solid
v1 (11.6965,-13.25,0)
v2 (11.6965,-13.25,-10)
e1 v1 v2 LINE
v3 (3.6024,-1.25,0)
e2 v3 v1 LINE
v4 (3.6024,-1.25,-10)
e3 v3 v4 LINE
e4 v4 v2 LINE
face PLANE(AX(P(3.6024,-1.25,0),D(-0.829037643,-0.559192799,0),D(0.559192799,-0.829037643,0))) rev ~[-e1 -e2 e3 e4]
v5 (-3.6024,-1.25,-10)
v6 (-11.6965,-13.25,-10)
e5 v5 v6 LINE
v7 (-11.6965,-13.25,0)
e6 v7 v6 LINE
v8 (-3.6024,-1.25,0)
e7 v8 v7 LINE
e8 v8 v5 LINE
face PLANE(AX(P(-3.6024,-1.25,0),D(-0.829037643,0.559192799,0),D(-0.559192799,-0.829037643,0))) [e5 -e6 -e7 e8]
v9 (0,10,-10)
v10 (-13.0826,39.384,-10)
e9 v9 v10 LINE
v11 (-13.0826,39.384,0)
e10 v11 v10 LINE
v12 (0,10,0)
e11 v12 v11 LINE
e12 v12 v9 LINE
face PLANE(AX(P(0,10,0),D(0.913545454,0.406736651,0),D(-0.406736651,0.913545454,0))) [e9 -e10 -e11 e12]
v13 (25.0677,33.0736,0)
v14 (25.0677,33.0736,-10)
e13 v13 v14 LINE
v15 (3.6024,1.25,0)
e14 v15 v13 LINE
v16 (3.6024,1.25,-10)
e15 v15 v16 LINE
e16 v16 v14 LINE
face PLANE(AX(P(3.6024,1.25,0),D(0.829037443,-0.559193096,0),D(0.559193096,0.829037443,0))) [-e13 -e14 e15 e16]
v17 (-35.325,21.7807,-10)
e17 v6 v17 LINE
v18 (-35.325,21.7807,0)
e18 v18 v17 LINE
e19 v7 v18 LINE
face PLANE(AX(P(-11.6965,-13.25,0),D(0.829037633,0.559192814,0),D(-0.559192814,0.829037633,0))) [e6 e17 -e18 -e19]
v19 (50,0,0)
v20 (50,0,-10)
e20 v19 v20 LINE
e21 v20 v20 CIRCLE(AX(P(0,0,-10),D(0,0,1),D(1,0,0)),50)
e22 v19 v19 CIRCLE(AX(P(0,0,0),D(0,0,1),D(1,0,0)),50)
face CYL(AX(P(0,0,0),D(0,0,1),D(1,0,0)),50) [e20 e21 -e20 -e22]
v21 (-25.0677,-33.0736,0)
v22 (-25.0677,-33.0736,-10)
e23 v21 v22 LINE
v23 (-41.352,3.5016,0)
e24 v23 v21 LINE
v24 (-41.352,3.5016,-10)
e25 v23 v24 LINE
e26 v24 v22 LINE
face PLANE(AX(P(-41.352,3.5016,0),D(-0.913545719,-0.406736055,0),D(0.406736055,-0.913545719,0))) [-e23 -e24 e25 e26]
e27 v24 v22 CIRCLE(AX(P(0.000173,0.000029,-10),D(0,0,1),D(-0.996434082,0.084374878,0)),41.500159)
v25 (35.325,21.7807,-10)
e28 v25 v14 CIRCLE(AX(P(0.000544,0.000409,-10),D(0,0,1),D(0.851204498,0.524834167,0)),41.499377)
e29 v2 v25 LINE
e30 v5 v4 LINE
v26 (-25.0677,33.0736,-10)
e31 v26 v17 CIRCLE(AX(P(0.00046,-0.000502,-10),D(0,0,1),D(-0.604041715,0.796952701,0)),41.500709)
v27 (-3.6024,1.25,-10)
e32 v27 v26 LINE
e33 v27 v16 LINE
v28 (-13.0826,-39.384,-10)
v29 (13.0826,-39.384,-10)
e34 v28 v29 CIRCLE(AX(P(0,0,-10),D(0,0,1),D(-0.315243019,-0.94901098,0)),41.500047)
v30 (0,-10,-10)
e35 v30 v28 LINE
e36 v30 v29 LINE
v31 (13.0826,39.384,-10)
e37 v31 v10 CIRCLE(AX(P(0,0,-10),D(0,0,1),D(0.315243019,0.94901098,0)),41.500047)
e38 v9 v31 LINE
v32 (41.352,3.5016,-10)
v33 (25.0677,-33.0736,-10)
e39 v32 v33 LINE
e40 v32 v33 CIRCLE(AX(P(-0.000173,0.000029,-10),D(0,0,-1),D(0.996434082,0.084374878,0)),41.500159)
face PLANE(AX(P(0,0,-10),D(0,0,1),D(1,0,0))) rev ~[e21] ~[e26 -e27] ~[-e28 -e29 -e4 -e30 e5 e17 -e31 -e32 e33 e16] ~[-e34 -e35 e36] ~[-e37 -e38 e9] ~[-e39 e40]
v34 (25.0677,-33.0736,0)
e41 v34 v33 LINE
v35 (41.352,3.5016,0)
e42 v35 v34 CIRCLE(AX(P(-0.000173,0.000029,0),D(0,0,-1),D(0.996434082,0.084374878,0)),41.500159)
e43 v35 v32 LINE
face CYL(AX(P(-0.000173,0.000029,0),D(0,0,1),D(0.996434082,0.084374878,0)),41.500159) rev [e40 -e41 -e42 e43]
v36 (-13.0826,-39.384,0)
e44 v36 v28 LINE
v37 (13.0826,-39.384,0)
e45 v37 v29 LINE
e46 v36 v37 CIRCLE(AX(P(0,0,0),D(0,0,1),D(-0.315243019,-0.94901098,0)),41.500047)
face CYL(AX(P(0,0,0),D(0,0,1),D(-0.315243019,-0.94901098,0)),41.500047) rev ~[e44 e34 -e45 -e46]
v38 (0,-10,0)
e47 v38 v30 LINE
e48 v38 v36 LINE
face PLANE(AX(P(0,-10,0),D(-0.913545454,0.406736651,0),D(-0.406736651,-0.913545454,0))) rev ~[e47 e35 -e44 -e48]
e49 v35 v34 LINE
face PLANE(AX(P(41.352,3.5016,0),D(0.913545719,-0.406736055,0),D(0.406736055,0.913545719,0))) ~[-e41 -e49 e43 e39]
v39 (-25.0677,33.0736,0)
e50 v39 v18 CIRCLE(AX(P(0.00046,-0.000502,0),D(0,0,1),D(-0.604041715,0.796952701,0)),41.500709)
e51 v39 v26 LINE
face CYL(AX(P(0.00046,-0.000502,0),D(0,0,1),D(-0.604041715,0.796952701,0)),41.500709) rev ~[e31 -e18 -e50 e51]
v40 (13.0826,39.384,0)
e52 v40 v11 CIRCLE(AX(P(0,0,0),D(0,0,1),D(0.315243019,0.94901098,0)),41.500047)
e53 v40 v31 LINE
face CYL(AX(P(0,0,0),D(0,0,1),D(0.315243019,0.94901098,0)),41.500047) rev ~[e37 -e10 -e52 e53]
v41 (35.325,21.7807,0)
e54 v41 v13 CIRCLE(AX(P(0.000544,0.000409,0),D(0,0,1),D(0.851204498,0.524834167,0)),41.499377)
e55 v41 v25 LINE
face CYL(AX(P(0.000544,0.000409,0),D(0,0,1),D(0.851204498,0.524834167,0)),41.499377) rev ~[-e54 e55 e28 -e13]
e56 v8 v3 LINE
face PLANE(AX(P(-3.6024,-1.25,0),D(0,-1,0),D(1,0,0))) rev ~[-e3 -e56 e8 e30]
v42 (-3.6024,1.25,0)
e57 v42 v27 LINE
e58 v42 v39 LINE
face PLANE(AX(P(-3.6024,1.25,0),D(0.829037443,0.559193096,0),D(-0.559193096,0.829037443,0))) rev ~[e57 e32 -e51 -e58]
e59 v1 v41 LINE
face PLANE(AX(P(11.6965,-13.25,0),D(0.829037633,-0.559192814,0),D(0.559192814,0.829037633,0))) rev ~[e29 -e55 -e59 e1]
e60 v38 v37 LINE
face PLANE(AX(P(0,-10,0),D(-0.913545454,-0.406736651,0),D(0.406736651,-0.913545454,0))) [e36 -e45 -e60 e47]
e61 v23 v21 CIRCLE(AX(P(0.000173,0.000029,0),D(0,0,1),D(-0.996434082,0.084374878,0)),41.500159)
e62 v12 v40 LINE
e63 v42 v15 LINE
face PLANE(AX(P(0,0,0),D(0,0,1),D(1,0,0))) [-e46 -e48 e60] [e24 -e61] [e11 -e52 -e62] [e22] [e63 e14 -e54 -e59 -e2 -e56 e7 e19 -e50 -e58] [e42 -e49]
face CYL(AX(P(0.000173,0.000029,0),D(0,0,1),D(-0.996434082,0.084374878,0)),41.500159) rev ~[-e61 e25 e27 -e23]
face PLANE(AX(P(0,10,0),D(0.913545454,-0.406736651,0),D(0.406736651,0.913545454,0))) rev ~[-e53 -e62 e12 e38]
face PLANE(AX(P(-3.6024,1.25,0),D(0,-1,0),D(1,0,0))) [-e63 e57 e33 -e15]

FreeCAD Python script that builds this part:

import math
import FreeCAD as App
import Part
import Sketcher

V = App.Vector
Q = App.Units.Quantity

doc = App.newDocument("Part")
params = doc.addObject("Spreadsheet::Sheet", "Params")
for row, (alias, value) in enumerate([
    ("sketch1_diameter", "100 mm"),
    ("pad1_length", "10 mm"),
    ("sketch2_radius", "41.5 mm"),
    ("pocket1_length", "10 mm"),
    ("sketch3_radius", "41.5 mm"),
    ("pocket2_length", "10 mm"),
    ("sketch4_radius", "41.5 mm"),
    ("pocket3_length", "10 mm"),
], start=1):
    params.set(f"A{row}", alias)
    params.set(f"B{row}", "=" + value)
    params.setAlias(f"B{row}", alias)

body = doc.addObject("PartDesign::Body", "Body")

# Sketch on XY plane
sketch1 = body.newObject("Sketcher::SketchObject", "Sketch")
sketch1.AttachmentSupport = (doc.getObject("XY_Plane"), [""])
sketch1.MapMode = "FlatFace"
sketch1.addGeometry(Part.Circle(V(0, 0, 0), V(0, 0, 1), 50), False)
sketch1.addConstraint(Sketcher.Constraint("Coincident", 0, 3, -1, 1))
sketch1.addConstraint(Sketcher.Constraint("Diameter", 0, Q("100 mm")))
sketch1.setExpression("Constraints[1]", "Params.sketch1_diameter")
pad1 = body.newObject("PartDesign::Pad", "Pad")
pad1.Profile = sketch1
pad1.setExpression("Length", "Params.pad1_length")
pad1.Reversed = True

# Sketch on XY plane
sketch2 = body.newObject("Sketcher::SketchObject", "Sketch001")
sketch2.AttachmentSupport = (doc.getObject("XY_Plane"), [""])
sketch2.MapMode = "FlatFace"
sketch2.addGeometry(Part.LineSegment(V(13, -39, 0), V(0, -10, 0)), False)
sketch2.addGeometry(Part.LineSegment(V(0, -10, 0), V(-13, -39, 0)), False)
sketch2.addGeometry(Part.ArcOfCircle(Part.Circle(V(0, 0, 0), V(0, 0, 1), 42), math.radians(-108), math.radians(-72)), False)
sketch2.addConstraint(Sketcher.Constraint("Coincident", 0, 2, 1, 1))
sketch2.addConstraint(Sketcher.Constraint("Coincident", 1, 2, 2, 1))
sketch2.addConstraint(Sketcher.Constraint("Coincident", 2, 2, 0, 1))
sketch2.addConstraint(Sketcher.Constraint("Coincident", 2, 3, -1, 1))
sketch2.addConstraint(Sketcher.Constraint("PointOnObject", 0, 2, -2))
sketch2.addConstraint(Sketcher.Constraint("Horizontal", 1, 2, 2, 2))
sketch2.addConstraint(Sketcher.Constraint("DistanceY", 0, 2, -1, 1, Q("10 mm")))
sketch2.addConstraint(Sketcher.Constraint("Radius", 2, Q("41.5 mm")))
sketch2.addConstraint(Sketcher.Constraint("Angle", 0, Q("114 deg")))
sketch2.setExpression("Constraints[7]", "Params.sketch2_radius")
pocket1 = body.newObject("PartDesign::Pocket", "Pocket")
pocket1.Profile = sketch2
pocket1.setExpression("Length", "Params.pocket1_length")
doc.recompute()

polarpattern = body.newObject("PartDesign::PolarPattern", "PolarPattern")
polarpattern.Originals = [pocket1]
polarpattern.Axis = (doc.getObject("Z_Axis"), [""])
polarpattern.Angle = 360
polarpattern.Occurrences = 2
body.Tip = polarpattern

# Sketch on XY plane
sketch3 = body.newObject("Sketcher::SketchObject", "Sketch002")
sketch3.AttachmentSupport = (doc.getObject("XY_Plane"), [""])
sketch3.MapMode = "FlatFace"
sketch3.addGeometry(Part.LineSegment(V(4, 1, 0), V(-4, 1, 0)), False)
sketch3.addGeometry(Part.LineSegment(V(-4, 1, 0), V(-25, 33, 0)), False)
sketch3.addGeometry(Part.ArcOfCircle(Part.Circle(V(0, 0, 0), V(0, 0, 1), 42), math.radians(127), math.radians(148)), False)
sketch3.addGeometry(Part.LineSegment(V(-35, 22, 0), V(-12, -13, 0)), False)
sketch3.addGeometry(Part.LineSegment(V(-12, -13, 0), V(-4, -1, 0)), False)
sketch3.addGeometry(Part.LineSegment(V(-4, -1, 0), V(4, -1, 0)), False)
sketch3.addGeometry(Part.LineSegment(V(4, -1, 0), V(12, -13, 0)), False)
sketch3.addGeometry(Part.LineSegment(V(12, -13, 0), V(35, 22, 0)), False)
sketch3.addGeometry(Part.ArcOfCircle(Part.Circle(V(0, 0, 0), V(0, 0, 1), 42), math.radians(32), math.radians(53)), False)
sketch3.addGeometry(Part.LineSegment(V(25, 33, 0), V(4, 1, 0)), False)
sketch3.addConstraint(Sketcher.Constraint("Coincident", 0, 2, 1, 1))
sketch3.addConstraint(Sketcher.Constraint("Coincident", 1, 2, 2, 1))
sketch3.addConstraint(Sketcher.Constraint("Coincident", 2, 2, 3, 1))
sketch3.addConstraint(Sketcher.Constraint("Coincident", 3, 2, 4, 1))
sketch3.addConstraint(Sketcher.Constraint("Coincident", 4, 2, 5, 1))
sketch3.addConstraint(Sketcher.Constraint("Coincident", 5, 2, 6, 1))
sketch3.addConstraint(Sketcher.Constraint("Coincident", 6, 2, 7, 1))
sketch3.addConstraint(Sketcher.Constraint("Coincident", 7, 2, 8, 1))
sketch3.addConstraint(Sketcher.Constraint("Coincident", 8, 2, 9, 1))
sketch3.addConstraint(Sketcher.Constraint("Coincident", 9, 2, 0, 1))
sketch3.addConstraint(Sketcher.Constraint("Horizontal", 0))
sketch3.addConstraint(Sketcher.Constraint("Horizontal", 5))
sketch3.addConstraint(Sketcher.Constraint("Coincident", 2, 3, -1, 1))
sketch3.addConstraint(Sketcher.Constraint("Coincident", 8, 3, -1, 1))
sketch3.addConstraint(Sketcher.Constraint("Equal", 2, 8))
sketch3.addConstraint(Sketcher.Constraint("Symmetric", 0, 2, 5, 2, -1, 1))
sketch3.addConstraint(Sketcher.Constraint("Symmetric", 3, 2, 6, 2, -2))
sketch3.addConstraint(Sketcher.Constraint("Parallel", 1, 3))
sketch3.addConstraint(Sketcher.Constraint("Parallel", 3, 6))
sketch3.addConstraint(Sketcher.Constraint("Parallel", 4, 7))
sketch3.addConstraint(Sketcher.Constraint("Parallel", 7, 9))
sketch3.addConstraint(Sketcher.Constraint("Horizontal", 2, 2, 7, 2))
sketch3.addConstraint(Sketcher.Constraint("Horizontal", 1, 2, 8, 2))
sketch3.addConstraint(Sketcher.Constraint("DistanceY", 3, 2, 4, 2, Q("12 mm")))
sketch3.addConstraint(Sketcher.Constraint("Radius", 2, Q("41.5 mm")))
sketch3.addConstraint(Sketcher.Constraint("DistanceY", 4, 2, 0, 2, Q("2.5 mm")))
sketch3.addConstraint(Sketcher.Constraint("Angle", 1, Q("124 deg")))
sketch3.addConstraint(Sketcher.Constraint("DistanceX", 0, 2, 8, 2, Q("28.67 mm")))
sketch3.setExpression("Constraints[24]", "Params.sketch3_radius")
pocket2 = body.newObject("PartDesign::Pocket", "Pocket001")
pocket2.Profile = sketch3
pocket2.setExpression("Length", "Params.pocket2_length")

# Sketch on XY plane
sketch4 = body.newObject("Sketcher::SketchObject", "Sketch003")
sketch4.AttachmentSupport = (doc.getObject("XY_Plane"), [""])
sketch4.MapMode = "FlatFace"
sketch4.addGeometry(Part.LineSegment(V(-25, -33, 0), V(-41, 4, 0)), False)
sketch4.addGeometry(Part.ArcOfCircle(Part.Circle(V(0, 0, 0), V(0, 0, 1), 42), math.radians(175), math.radians(233)), False)
sketch4.addConstraint(Sketcher.Constraint("Coincident", 0, 1, 1, 2))
sketch4.addConstraint(Sketcher.Constraint("Coincident", 1, 1, 0, 2))
sketch4.addConstraint(Sketcher.Constraint("Coincident", 1, 3, -1, 1))
sketch4.addConstraint(Sketcher.Constraint("Radius", 1, Q("41.5 mm")))
sketch4.addConstraint(Sketcher.Constraint("Angle", 0, Q("114 deg")))
sketch4.addConstraint(Sketcher.Constraint("DistanceX", 1, 1, -1, 1, Q("41.352 mm")))
sketch4.setExpression("Constraints[3]", "Params.sketch4_radius")
pocket3 = body.newObject("PartDesign::Pocket", "Pocket002")
pocket3.Profile = sketch4
pocket3.setExpression("Length", "Params.pocket3_length")
doc.recompute()

mirrored = body.newObject("PartDesign::Mirrored", "Mirrored")
mirrored.Originals = [pocket3]
mirrored.MirrorPlane = (doc.getObject("YZ_Plane"), [""])
body.Tip = mirrored

doc.recompute()
